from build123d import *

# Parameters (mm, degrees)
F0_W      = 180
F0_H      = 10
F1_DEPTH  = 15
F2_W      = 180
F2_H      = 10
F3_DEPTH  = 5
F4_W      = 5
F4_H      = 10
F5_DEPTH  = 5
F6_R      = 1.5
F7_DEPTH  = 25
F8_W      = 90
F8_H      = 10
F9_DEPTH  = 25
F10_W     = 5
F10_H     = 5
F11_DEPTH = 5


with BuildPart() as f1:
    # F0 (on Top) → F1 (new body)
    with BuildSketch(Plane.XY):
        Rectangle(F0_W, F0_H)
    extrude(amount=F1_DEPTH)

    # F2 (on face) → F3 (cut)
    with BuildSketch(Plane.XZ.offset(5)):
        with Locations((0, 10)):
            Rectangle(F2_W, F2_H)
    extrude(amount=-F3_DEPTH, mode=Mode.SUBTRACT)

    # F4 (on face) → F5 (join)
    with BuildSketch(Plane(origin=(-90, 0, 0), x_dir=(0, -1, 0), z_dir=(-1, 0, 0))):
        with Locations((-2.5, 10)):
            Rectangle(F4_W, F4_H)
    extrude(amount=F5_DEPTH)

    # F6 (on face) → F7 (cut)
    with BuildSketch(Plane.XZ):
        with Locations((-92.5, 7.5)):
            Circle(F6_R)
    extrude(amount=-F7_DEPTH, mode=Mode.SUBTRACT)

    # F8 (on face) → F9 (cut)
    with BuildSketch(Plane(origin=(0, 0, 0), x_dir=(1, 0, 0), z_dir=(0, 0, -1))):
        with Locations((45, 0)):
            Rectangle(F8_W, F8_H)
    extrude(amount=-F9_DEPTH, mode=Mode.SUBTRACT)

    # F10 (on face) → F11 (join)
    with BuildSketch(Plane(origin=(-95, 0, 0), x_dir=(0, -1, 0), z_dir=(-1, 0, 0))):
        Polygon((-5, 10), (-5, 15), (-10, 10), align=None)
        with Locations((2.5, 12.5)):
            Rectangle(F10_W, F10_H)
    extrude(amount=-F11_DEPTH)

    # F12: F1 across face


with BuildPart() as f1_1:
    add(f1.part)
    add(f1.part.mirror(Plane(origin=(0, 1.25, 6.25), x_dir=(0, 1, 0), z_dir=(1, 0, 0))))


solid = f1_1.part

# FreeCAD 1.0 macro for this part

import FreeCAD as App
import Part
import Sketcher


def add_polygon(sketch, points):
    """Adds a closed chain of lines whose ends are joined by coincident constraints."""
    first, n = sketch.GeometryCount, len(points)
    for a, b in zip(points, points[1:] + points[:1]):
        sketch.addGeometry(Part.LineSegment(App.Vector(*a, 0), App.Vector(*b, 0)), False)
    for i in range(n):
        sketch.addConstraint(Sketcher.Constraint("Coincident", first + i, 2, first + (i + 1) % n, 1))

doc = App.newDocument("Part")
body = doc.addObject("PartDesign::Body", "Body")

# Sketch on XY plane
sketch1 = body.newObject("Sketcher::SketchObject", "Sketch")
sketch1.AttachmentSupport = (doc.getObject("XY_Plane"), [""])
sketch1.MapMode = "FlatFace"
add_polygon(sketch1, [(-90, 5), (-90, -5), (90, -5), (90, 5)])  # lines 0-3
sketch1.addConstraint([
    Sketcher.Constraint("Vertical", 0),
    Sketcher.Constraint("Horizontal", 1),
    Sketcher.Constraint("Vertical", 2),
    Sketcher.Constraint("Horizontal", 3),
    Sketcher.Constraint("Symmetric", 0, 2, 2, 2, -1, 1),
    Sketcher.Constraint("DistanceX", 1, 1, 1, 2, 180.0),
    Sketcher.Constraint("DistanceY", 0, 2, 0, 1, 10.0),
])
pad1 = body.newObject("PartDesign::Pad", "Pad")
pad1.Profile = sketch1
pad1.Length = 15

# Sketch on XZ plane
sketch2 = body.newObject("Sketcher::SketchObject", "Sketch001")
sketch2.AttachmentSupport = (doc.getObject("XZ_Plane"), [""])
sketch2.MapMode = "FlatFace"
sketch2.AttachmentOffset = App.Placement(App.Vector(0, 0, 5), App.Rotation())
add_polygon(sketch2, [(-90, 15), (-90, 5), (90, 5), (90, 15)])  # lines 0-3
sketch2.addConstraint([
    Sketcher.Constraint("Vertical", 0),
    Sketcher.Constraint("Horizontal", 1),
    Sketcher.Constraint("Vertical", 2),
    Sketcher.Constraint("Horizontal", 3),
    Sketcher.Constraint("DistanceX", 1, 1, 1, 2, 180.0),
    Sketcher.Constraint("DistanceY", 0, 2, 0, 1, 10.0),
    Sketcher.Constraint("DistanceX", 0, 2, -1, 1, 90.0),
    Sketcher.Constraint("DistanceY", -1, 1, 0, 2, 5.0),
])
pocket1 = body.newObject("PartDesign::Pocket", "Pocket")
pocket1.Profile = sketch2
pocket1.Length = 5

# Sketch on YZ plane
sketch3 = body.newObject("Sketcher::SketchObject", "Sketch002")
sketch3.AttachmentSupport = (doc.getObject("YZ_Plane"), [""])
sketch3.MapMode = "FlatFace"
sketch3.AttachmentOffset = App.Placement(App.Vector(0, 0, -90), App.Rotation())
add_polygon(sketch3, [(5, 15), (5, 5), (0, 5), (0, 15)])  # lines 0-3
sketch3.addConstraint([
    Sketcher.Constraint("Vertical", 0),
    Sketcher.Constraint("Horizontal", 1),
    Sketcher.Constraint("Vertical", 2),
    Sketcher.Constraint("Horizontal", 3),
    Sketcher.Constraint("PointOnObject", 1, 2, -2),
    Sketcher.Constraint("DistanceX", 1, 2, 1, 1, 5.0),
    Sketcher.Constraint("DistanceY", 0, 2, 0, 1, 10.0),
    Sketcher.Constraint("DistanceY", -1, 1, 0, 2, 5.0),
])
pad2 = body.newObject("PartDesign::Pad", "Pad001")
pad2.Profile = sketch3
pad2.Length = 5
pad2.Reversed = True

# Sketch on XZ plane
sketch4 = body.newObject("Sketcher::SketchObject", "Sketch003")
sketch4.AttachmentSupport = (doc.getObject("XZ_Plane"), [""])
sketch4.MapMode = "FlatFace"
sketch4.addGeometry(Part.Circle(App.Vector(-92.5, 7.5, 0), App.Vector(0, 0, 1), 1.5), False)
sketch4.addConstraint([
    Sketcher.Constraint("Diameter", 0, 3.0),
    Sketcher.Constraint("DistanceX", 0, 3, -1, 1, 92.5),
    Sketcher.Constraint("DistanceY", -1, 1, 0, 3, 7.5),
])
pocket2 = body.newObject("PartDesign::Pocket", "Pocket001")
pocket2.Profile = sketch4
pocket2.Length = 25

# Sketch on XY plane
sketch5 = body.newObject("Sketcher::SketchObject", "Sketch004")
sketch5.AttachmentSupport = (doc.getObject("XY_Plane"), [""])
sketch5.MapMode = "FlatFace"
add_polygon(sketch5, [(0, -5), (0, 5), (90, 5), (90, -5)])  # lines 0-3
sketch5.addConstraint([
    Sketcher.Constraint("Vertical", 0),
    Sketcher.Constraint("Horizontal", 1),
    Sketcher.Constraint("Vertical", 2),
    Sketcher.Constraint("Horizontal", 3),
    Sketcher.Constraint("Symmetric", 0, 2, 3, 2, -1, 1),
    Sketcher.Constraint("DistanceX", 1, 1, 1, 2, 90.0),
    Sketcher.Constraint("DistanceY", 0, 1, 0, 2, 10.0),
])
pocket3 = body.newObject("PartDesign::Pocket", "Pocket002")
pocket3.Profile = sketch5
pocket3.Length = 25
pocket3.Reversed = True

# Sketch on YZ plane
sketch6 = body.newObject("Sketcher::SketchObject", "Sketch005")
sketch6.AttachmentSupport = (doc.getObject("YZ_Plane"), [""])
sketch6.MapMode = "FlatFace"
sketch6.AttachmentOffset = App.Placement(App.Vector(0, 0, -95), App.Rotation())
add_polygon(sketch6, [(5, 10), (5, 15), (10, 10)])  # lines 0-2
add_polygon(sketch6, [(0, 15), (0, 10), (-5, 10), (-5, 15)])  # lines 3-6
sketch6.addConstraint([
    Sketcher.Constraint("Vertical", 0),
    Sketcher.Constraint("Horizontal", 2),
    Sketcher.Constraint("Vertical", 3),
    Sketcher.Constraint("Horizontal", 4),
    Sketcher.Constraint("Vertical", 5),
    Sketcher.Constraint("Horizontal", 6),
    Sketcher.Constraint("Symmetric", 2, 2, 4, 2, -2),
    Sketcher.Constraint("PointOnObject", 3, 2, -2),
    Sketcher.Constraint("Horizontal", 0, 2, 5, 2),
    Sketcher.Constraint("Equal", 2, 4),
    Sketcher.Constraint("Equal", 6, 0),
    Sketcher.Constraint("DistanceX", 2, 2, 2, 1, 5.0),
    Sketcher.Constraint("DistanceY", -1, 1, 0, 2, 15.0),
])
pad3 = body.newObject("PartDesign::Pad", "Pad002")
pad3.Profile = sketch6
pad3.Length = 5
body2 = doc.addObject("PartDesign::Body", "Body001")
doc.recompute()

body2.BaseFeature = body
doc.recompute()

mirroring = doc.addObject("Part::Mirroring", "Mirroring")
mirroring.Source = body
mirroring.Base = App.Vector(0, 1.25, 6.25)
mirroring.Normal = App.Vector(1, 0, 0)
body3 = doc.addObject("PartDesign::Body", "Body002")
body3.BaseFeature = mirroring
boolean = body2.newObject("PartDesign::Boolean", "Boolean")
boolean.Type = "Fuse"
boolean.addObjects([body3])
doc.recompute()
mirroring.Visibility = False

doc.recompute()
